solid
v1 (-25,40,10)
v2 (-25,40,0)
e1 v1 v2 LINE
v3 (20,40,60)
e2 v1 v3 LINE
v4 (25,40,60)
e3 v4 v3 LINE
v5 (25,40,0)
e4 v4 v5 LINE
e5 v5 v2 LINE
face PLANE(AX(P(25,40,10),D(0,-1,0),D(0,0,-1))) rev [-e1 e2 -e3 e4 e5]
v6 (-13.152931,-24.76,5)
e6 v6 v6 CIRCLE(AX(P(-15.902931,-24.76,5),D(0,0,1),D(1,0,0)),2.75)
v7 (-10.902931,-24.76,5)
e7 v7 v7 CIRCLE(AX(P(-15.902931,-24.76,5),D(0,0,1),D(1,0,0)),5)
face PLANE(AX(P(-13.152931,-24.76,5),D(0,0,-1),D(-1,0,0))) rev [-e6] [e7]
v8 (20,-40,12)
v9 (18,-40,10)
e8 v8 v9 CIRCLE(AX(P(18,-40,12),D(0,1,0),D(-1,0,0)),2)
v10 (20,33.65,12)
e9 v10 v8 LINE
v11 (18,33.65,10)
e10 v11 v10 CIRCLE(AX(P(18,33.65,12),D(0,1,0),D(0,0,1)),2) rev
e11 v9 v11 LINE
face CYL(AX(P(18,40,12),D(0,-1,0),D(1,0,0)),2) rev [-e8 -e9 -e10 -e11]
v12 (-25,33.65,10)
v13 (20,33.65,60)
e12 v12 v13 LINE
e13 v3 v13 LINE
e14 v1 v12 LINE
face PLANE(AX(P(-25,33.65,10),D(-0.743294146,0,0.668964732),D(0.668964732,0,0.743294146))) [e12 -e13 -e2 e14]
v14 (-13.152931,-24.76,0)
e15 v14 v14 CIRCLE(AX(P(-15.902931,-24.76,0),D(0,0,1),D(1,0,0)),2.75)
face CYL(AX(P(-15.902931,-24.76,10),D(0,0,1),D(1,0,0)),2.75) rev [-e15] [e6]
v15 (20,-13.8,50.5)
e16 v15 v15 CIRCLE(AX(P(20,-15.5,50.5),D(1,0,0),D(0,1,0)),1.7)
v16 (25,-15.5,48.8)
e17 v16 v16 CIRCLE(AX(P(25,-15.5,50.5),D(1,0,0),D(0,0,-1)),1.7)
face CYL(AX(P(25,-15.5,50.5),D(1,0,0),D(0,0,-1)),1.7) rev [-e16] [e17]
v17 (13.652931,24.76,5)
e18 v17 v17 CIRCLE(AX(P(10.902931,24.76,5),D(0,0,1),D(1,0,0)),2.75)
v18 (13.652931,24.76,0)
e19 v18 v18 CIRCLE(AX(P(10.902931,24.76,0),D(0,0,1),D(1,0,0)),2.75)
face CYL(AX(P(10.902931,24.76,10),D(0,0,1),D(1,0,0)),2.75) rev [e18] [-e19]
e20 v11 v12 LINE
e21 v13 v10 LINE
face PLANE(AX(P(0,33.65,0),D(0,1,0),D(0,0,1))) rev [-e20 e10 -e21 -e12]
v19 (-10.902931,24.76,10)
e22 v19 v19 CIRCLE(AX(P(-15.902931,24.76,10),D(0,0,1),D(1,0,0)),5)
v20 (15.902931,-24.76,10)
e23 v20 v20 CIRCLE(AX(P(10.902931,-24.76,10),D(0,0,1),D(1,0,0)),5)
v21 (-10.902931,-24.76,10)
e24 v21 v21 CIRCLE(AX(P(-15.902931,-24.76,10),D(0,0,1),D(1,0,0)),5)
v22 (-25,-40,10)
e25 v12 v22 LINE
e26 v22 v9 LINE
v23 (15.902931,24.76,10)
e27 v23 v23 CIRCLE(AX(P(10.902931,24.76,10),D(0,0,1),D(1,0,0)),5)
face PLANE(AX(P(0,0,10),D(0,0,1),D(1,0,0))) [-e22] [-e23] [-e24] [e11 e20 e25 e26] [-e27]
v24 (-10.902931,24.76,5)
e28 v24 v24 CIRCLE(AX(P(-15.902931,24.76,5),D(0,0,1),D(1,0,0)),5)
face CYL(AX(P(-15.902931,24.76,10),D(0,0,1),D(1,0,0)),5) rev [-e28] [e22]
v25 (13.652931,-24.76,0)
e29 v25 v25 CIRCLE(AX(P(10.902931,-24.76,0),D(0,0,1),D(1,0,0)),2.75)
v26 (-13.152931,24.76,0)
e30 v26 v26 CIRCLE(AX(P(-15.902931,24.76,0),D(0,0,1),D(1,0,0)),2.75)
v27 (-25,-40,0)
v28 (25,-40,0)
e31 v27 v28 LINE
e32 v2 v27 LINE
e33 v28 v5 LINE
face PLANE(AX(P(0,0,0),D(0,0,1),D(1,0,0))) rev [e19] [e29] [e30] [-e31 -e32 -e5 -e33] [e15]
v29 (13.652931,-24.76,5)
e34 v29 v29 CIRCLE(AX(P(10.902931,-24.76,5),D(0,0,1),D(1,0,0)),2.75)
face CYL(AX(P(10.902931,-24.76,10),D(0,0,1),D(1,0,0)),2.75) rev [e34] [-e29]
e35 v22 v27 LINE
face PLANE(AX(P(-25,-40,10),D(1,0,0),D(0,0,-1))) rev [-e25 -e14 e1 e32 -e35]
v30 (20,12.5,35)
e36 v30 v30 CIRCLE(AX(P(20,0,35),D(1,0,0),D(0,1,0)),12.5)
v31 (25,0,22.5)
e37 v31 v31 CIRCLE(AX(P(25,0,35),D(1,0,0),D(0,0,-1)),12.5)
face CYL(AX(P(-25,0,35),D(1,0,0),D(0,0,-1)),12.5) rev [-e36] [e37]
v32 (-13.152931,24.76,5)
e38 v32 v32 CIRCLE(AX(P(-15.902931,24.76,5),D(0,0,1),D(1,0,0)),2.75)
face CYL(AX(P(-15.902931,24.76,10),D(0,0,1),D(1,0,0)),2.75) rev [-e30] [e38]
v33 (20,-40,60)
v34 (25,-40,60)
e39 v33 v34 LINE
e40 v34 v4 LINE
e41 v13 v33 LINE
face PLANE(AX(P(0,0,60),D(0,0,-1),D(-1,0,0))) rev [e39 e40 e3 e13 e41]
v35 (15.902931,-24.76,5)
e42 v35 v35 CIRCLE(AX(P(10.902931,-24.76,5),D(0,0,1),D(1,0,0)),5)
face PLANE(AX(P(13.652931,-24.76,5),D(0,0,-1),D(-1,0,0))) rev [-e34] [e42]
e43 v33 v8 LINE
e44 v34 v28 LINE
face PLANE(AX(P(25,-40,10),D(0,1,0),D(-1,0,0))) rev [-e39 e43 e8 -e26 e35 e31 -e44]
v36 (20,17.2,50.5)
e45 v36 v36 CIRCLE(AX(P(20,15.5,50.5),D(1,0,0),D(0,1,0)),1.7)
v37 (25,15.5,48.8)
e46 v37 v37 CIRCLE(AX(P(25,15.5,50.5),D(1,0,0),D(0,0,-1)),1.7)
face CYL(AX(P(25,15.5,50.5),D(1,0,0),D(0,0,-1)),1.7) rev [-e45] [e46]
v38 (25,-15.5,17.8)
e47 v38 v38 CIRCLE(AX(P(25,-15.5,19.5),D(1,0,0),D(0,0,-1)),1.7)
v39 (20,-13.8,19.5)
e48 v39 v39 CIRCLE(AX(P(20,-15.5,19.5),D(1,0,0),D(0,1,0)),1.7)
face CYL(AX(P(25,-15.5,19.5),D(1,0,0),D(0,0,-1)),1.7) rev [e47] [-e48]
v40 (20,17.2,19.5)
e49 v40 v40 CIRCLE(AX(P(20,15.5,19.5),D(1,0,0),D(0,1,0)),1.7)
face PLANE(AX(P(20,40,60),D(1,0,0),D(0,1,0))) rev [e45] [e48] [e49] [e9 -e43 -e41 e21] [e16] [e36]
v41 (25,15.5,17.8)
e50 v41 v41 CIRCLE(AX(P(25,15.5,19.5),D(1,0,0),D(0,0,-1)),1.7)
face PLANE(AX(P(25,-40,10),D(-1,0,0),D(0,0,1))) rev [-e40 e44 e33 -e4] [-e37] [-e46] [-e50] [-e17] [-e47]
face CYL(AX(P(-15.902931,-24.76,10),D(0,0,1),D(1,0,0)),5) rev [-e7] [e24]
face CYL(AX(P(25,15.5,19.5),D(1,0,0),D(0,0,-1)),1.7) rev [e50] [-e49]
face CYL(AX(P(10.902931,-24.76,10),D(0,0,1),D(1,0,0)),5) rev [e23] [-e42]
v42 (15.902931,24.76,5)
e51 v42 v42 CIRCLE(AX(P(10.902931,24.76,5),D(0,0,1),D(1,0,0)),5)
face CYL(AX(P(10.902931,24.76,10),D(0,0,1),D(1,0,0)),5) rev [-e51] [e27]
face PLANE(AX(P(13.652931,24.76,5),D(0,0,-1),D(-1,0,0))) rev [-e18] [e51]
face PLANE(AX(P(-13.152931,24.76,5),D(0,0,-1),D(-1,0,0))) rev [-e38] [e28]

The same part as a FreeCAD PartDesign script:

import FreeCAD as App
import Part
import Sketcher

V = App.Vector
Q = App.Units.Quantity


def edges_at(feature, points):
    """Names of the edges that pass closest to the given points."""
    edges = feature.Shape.Edges
    near = lambda p: min(range(len(edges)), key=lambda i: edges[i].distToShape(Part.Vertex(*p))[0])
    return sorted({f"Edge{near(p) + 1}" for p in points})

doc = App.newDocument("Part")
params = doc.addObject("Spreadsheet::Sheet", "Params")
for row, (alias, value) in enumerate([
    ("sketch1_width", "50 mm"),
    ("sketch1_height", "80 mm"),
    ("pad1_length", "10 mm"),
    ("sketch2_width", "5 mm"),
    ("sketch2_height", "80 mm"),
    ("pad2_length", "50 mm"),
    ("sketch3_diameter", "25 mm"),
    ("sketch4_diameter", "3.4 mm"),
    ("hole_diameter", "3.4 mm"),
    ("sketch5_diameter", "5.5 mm"),
    ("hole2_diameter", "5.5 mm"),
    ("hole2_cbore_diameter", "10 mm"),
    ("hole2_cbore_depth", "5 mm"),
    ("fillet_radius", "2 mm"),
    ("sketch6_width", "45 mm"),
    ("sketch6_height", "50 mm"),
    ("pad3_length", "6.35 mm"),
], start=1):
    params.set(f"A{row}", alias)
    params.set(f"B{row}", "=" + value)
    params.setAlias(f"B{row}", alias)

body = doc.addObject("PartDesign::Body", "Body")

sketch1 = body.newObject("Sketcher::SketchObject", "Sketch")
sketch1.AttachmentSupport = (doc.getObject("XY_Plane"), [""])
sketch1.MapMode = "FlatFace"
sketch1.addGeometry(Part.LineSegment(V(-25, 40, 0), V(-25, -40, 0)), False)
sketch1.addGeometry(Part.LineSegment(V(-25, -40, 0), V(25, -40, 0)), False)
sketch1.addGeometry(Part.LineSegment(V(25, -40, 0), V(25, 40, 0)), False)
sketch1.addGeometry(Part.LineSegment(V(25, 40, 0), V(-25, 40, 0)), False)
sketch1.addConstraint(Sketcher.Constraint("Coincident", 0, 2, 1, 1))
sketch1.addConstraint(Sketcher.Constraint("Coincident", 1, 2, 2, 1))
sketch1.addConstraint(Sketcher.Constraint("Coincident", 2, 2, 3, 1))
sketch1.addConstraint(Sketcher.Constraint("Coincident", 3, 2, 0, 1))
sketch1.addConstraint(Sketcher.Constraint("Vertical", 0))
sketch1.addConstraint(Sketcher.Constraint("Horizontal", 1))
sketch1.addConstraint(Sketcher.Constraint("Vertical", 2))
sketch1.addConstraint(Sketcher.Constraint("Horizontal", 3))
sketch1.addConstraint(Sketcher.Constraint("Symmetric", 0, 2, 2, 2, -1, 1))
sketch1.addConstraint(Sketcher.Constraint("DistanceX", 1, 1, 1, 2, Q("50 mm")))
sketch1.addConstraint(Sketcher.Constraint("DistanceY", 0, 2, 0, 1, Q("80 mm")))
sketch1.setExpression("Constraints[9]", "Params.sketch1_width")
sketch1.setExpression("Constraints[10]", "Params.sketch1_height")
pad1 = body.newObject("PartDesign::Pad", "Pad")
pad1.Profile = sketch1
pad1.setExpression("Length", "Params.pad1_length")

sketch2 = body.newObject("Sketcher::SketchObject", "Sketch001")
sketch2.AttachmentSupport = (doc.getObject("XY_Plane"), [""])
sketch2.MapMode = "FlatFace"
sketch2.AttachmentOffset = App.Placement(V(0, 0, 10), App.Rotation())
sketch2.addGeometry(Part.LineSegment(V(20, 40, 0), V(20, -40, 0)), False)
sketch2.addGeometry(Part.LineSegment(V(20, -40, 0), V(25, -40, 0)), False)
sketch2.addGeometry(Part.LineSegment(V(25, -40, 0), V(25, 40, 0)), False)
sketch2.addGeometry(Part.LineSegment(V(25, 40, 0), V(20, 40, 0)), False)
sketch2.addConstraint(Sketcher.Constraint("Coincident", 0, 2, 1, 1))
sketch2.addConstraint(Sketcher.Constraint("Coincident", 1, 2, 2, 1))
sketch2.addConstraint(Sketcher.Constraint("Coincident", 2, 2, 3, 1))
sketch2.addConstraint(Sketcher.Constraint("Coincident", 3, 2, 0, 1))
sketch2.addConstraint(Sketcher.Constraint("Vertical", 0))
sketch2.addConstraint(Sketcher.Constraint("Horizontal", 1))
sketch2.addConstraint(Sketcher.Constraint("Vertical", 2))
sketch2.addConstraint(Sketcher.Constraint("Horizontal", 3))
sketch2.addConstraint(Sketcher.Constraint("DistanceX", 1, 1, 1, 2, Q("5 mm")))
sketch2.addConstraint(Sketcher.Constraint("DistanceY", 0, 2, 0, 1, Q("80 mm")))
sketch2.addConstraint(Sketcher.Constraint("DistanceX", -1, 1, 0, 2, Q("20 mm")))
sketch2.addConstraint(Sketcher.Constraint("DistanceY", 0, 2, -1, 1, Q("40 mm")))
sketch2.setExpression("Constraints[8]", "Params.sketch2_width")
sketch2.setExpression("Constraints[9]", "Params.sketch2_height")
pad2 = body.newObject("PartDesign::Pad", "Pad001")
pad2.Profile = sketch2
pad2.setExpression("Length", "Params.pad2_length")

sketch3 = body.newObject("Sketcher::SketchObject", "Sketch002")
sketch3.AttachmentSupport = (doc.getObject("YZ_Plane"), [""])
sketch3.MapMode = "FlatFace"
sketch3.AttachmentOffset = App.Placement(V(0, 0, 25), App.Rotation())
sketch3.addGeometry(Part.Circle(V(0, 35, 0), V(0, 0, 1), 12.5), False)
sketch3.addConstraint(Sketcher.Constraint("PointOnObject", 0, 3, -2))
sketch3.addConstraint(Sketcher.Constraint("Diameter", 0, Q("25 mm")))
sketch3.addConstraint(Sketcher.Constraint("DistanceY", -1, 1, 0, 3, Q("35 mm")))
sketch3.setExpression("Constraints[1]", "Params.sketch3_diameter")
pocket1 = body.newObject("PartDesign::Pocket", "Pocket")
pocket1.Profile = sketch3
pocket1.Type = "ThroughAll"

sketch4 = body.newObject("Sketcher::SketchObject", "Sketch003")
sketch4.AttachmentSupport = (doc.getObject("YZ_Plane"), [""])
sketch4.MapMode = "FlatFace"
sketch4.AttachmentOffset = App.Placement(V(0, 0, 25), App.Rotation())
sketch4.addGeometry(Part.Circle(V(-15.5, 50.5, 0), V(0, 0, 1), 1.7), False)
sketch4.addGeometry(Part.Circle(V(0, 35, 0), V(0, 0, 1), 1.7), False)
sketch4.addGeometry(Part.Circle(V(15.5, 50.5, 0), V(0, 0, 1), 1.7), False)
sketch4.addGeometry(Part.Circle(V(-15.5, 19.5, 0), V(0, 0, 1), 1.7), False)
sketch4.addGeometry(Part.Circle(V(15.5, 19.5, 0), V(0, 0, 1), 1.7), False)
sketch4.addConstraint(Sketcher.Constraint("Equal", 0, 1))
sketch4.addConstraint(Sketcher.Constraint("Equal", 1, 2))
sketch4.addConstraint(Sketcher.Constraint("Equal", 2, 3))
sketch4.addConstraint(Sketcher.Constraint("Equal", 3, 4))
sketch4.addConstraint(Sketcher.Constraint("Symmetric", 0, 3, 2, 3, -2))
sketch4.addConstraint(Sketcher.Constraint("Symmetric", 3, 3, 4, 3, -2))
sketch4.addConstraint(Sketcher.Constraint("PointOnObject", 1, 3, -2))
sketch4.addConstraint(Sketcher.Constraint("Vertical", 0, 3, 3, 3))
sketch4.addConstraint(Sketcher.Constraint("Diameter", 0, Q("3.4 mm")))
sketch4.addConstraint(Sketcher.Constraint("DistanceY", -1, 1, 1, 3, Q("35 mm")))
sketch4.addConstraint(Sketcher.Constraint("DistanceX", 0, 3, 2, 3, Q("31 mm")))
sketch4.addConstraint(Sketcher.Constraint("DistanceY", 3, 3, 0, 3, Q("31 mm")))
sketch4.addConstraint(Sketcher.Constraint("DistanceY", -1, 1, 0, 3, Q("50.5 mm")))
sketch4.setExpression("Constraints[8]", "Params.sketch4_diameter")
doc.recompute()
hole = body.newObject("PartDesign::Hole", "Hole")
hole.Profile = sketch4
hole.ThreadType = "None"
hole.setExpression("Diameter", "Params.hole_diameter")
hole.DepthType = "ThroughAll"

sketch5 = body.newObject("Sketcher::SketchObject", "Sketch004")
sketch5.AttachmentSupport = (doc.getObject("XY_Plane"), [""])
sketch5.MapMode = "FlatFace"
sketch5.AttachmentOffset = App.Placement(V(0, 0, 10), App.Rotation())
sketch5.addGeometry(Part.Circle(V(-15.902931, 24.76, 0), V(0, 0, 1), 2.75), False)
sketch5.addGeometry(Part.Circle(V(10.902931, 24.76, 0), V(0, 0, 1), 2.75), False)
sketch5.addGeometry(Part.Circle(V(-15.902931, -24.76, 0), V(0, 0, 1), 2.75), False)
sketch5.addGeometry(Part.Circle(V(10.902931, -24.76, 0), V(0, 0, 1), 2.75), False)
sketch5.addConstraint(Sketcher.Constraint("Equal", 0, 1))
sketch5.addConstraint(Sketcher.Constraint("Equal", 1, 2))
sketch5.addConstraint(Sketcher.Constraint("Equal", 2, 3))
sketch5.addConstraint(Sketcher.Constraint("Symmetric", 0, 3, 2, 3, -1))
sketch5.addConstraint(Sketcher.Constraint("Symmetric", 1, 3, 3, 3, -1))
sketch5.addConstraint(Sketcher.Constraint("Horizontal", 0, 3, 1, 3))
sketch5.addConstraint(Sketcher.Constraint("Diameter", 0, Q("5.5 mm")))
sketch5.addConstraint(Sketcher.Constraint("DistanceY", -1, 1, 0, 3, Q("24.76 mm")))
sketch5.addConstraint(Sketcher.Constraint("DistanceX", 0, 3, -1, 1, Q("15.902931 mm")))
sketch5.addConstraint(Sketcher.Constraint("DistanceX", -1, 1, 1, 3, Q("10.902931 mm")))
sketch5.setExpression("Constraints[6]", "Params.sketch5_diameter")
doc.recompute()
hole2 = body.newObject("PartDesign::Hole", "Hole001")
hole2.Profile = sketch5
hole2.ThreadType = "None"
hole2.setExpression("Diameter", "Params.hole2_diameter")
hole2.DepthType = "ThroughAll"
hole2.HoleCutType = "Counterbore"
hole2.setExpression("HoleCutDiameter", "Params.hole2_cbore_diameter")
hole2.setExpression("HoleCutDepth", "Params.hole2_cbore_depth")
doc.recompute()

fillet = body.newObject("PartDesign::Fillet", "Fillet")
fillet.Base = (hole2, edges_at(hole2, [(20, 0, 10)]))
fillet.setExpression("Radius", "Params.fillet_radius")

sketch6 = body.newObject("Sketcher::SketchObject", "Sketch005")
sketch6.AttachmentSupport = (doc.getObject("XZ_Plane"), [""])
sketch6.MapMode = "FlatFace"
sketch6.AttachmentOffset = App.Placement(V(0, 0, -40), App.Rotation())
sketch6.addGeometry(Part.LineSegment(V(-25, 10, 0), V(20, 60, 0)), False)
sketch6.addGeometry(Part.LineSegment(V(20, 60, 0), V(20, 10, 0)), False)
sketch6.addGeometry(Part.LineSegment(V(20, 10, 0), V(-25, 10, 0)), False)
sketch6.addConstraint(Sketcher.Constraint("Coincident", 0, 2, 1, 1))
sketch6.addConstraint(Sketcher.Constraint("Coincident", 1, 2, 2, 1))
sketch6.addConstraint(Sketcher.Constraint("Coincident", 2, 2, 0, 1))
sketch6.addConstraint(Sketcher.Constraint("Vertical", 1))
sketch6.addConstraint(Sketcher.Constraint("Horizontal", 2))
sketch6.addConstraint(Sketcher.Constraint("DistanceX", 2, 2, 2, 1, Q("45 mm")))
sketch6.addConstraint(Sketcher.Constraint("DistanceY", 1, 2, 1, 1, Q("50 mm")))
sketch6.addConstraint(Sketcher.Constraint("DistanceX", -1, 1, 0, 2, Q("20 mm")))
sketch6.addConstraint(Sketcher.Constraint("DistanceY", -1, 1, 0, 2, Q("60 mm")))
sketch6.setExpression("Constraints[5]", "Params.sketch6_width")
sketch6.setExpression("Constraints[6]", "Params.sketch6_height")
pad3 = body.newObject("PartDesign::Pad", "Pad002")
pad3.Profile = sketch6
pad3.setExpression("Length", "Params.pad3_length")

doc.recompute()
